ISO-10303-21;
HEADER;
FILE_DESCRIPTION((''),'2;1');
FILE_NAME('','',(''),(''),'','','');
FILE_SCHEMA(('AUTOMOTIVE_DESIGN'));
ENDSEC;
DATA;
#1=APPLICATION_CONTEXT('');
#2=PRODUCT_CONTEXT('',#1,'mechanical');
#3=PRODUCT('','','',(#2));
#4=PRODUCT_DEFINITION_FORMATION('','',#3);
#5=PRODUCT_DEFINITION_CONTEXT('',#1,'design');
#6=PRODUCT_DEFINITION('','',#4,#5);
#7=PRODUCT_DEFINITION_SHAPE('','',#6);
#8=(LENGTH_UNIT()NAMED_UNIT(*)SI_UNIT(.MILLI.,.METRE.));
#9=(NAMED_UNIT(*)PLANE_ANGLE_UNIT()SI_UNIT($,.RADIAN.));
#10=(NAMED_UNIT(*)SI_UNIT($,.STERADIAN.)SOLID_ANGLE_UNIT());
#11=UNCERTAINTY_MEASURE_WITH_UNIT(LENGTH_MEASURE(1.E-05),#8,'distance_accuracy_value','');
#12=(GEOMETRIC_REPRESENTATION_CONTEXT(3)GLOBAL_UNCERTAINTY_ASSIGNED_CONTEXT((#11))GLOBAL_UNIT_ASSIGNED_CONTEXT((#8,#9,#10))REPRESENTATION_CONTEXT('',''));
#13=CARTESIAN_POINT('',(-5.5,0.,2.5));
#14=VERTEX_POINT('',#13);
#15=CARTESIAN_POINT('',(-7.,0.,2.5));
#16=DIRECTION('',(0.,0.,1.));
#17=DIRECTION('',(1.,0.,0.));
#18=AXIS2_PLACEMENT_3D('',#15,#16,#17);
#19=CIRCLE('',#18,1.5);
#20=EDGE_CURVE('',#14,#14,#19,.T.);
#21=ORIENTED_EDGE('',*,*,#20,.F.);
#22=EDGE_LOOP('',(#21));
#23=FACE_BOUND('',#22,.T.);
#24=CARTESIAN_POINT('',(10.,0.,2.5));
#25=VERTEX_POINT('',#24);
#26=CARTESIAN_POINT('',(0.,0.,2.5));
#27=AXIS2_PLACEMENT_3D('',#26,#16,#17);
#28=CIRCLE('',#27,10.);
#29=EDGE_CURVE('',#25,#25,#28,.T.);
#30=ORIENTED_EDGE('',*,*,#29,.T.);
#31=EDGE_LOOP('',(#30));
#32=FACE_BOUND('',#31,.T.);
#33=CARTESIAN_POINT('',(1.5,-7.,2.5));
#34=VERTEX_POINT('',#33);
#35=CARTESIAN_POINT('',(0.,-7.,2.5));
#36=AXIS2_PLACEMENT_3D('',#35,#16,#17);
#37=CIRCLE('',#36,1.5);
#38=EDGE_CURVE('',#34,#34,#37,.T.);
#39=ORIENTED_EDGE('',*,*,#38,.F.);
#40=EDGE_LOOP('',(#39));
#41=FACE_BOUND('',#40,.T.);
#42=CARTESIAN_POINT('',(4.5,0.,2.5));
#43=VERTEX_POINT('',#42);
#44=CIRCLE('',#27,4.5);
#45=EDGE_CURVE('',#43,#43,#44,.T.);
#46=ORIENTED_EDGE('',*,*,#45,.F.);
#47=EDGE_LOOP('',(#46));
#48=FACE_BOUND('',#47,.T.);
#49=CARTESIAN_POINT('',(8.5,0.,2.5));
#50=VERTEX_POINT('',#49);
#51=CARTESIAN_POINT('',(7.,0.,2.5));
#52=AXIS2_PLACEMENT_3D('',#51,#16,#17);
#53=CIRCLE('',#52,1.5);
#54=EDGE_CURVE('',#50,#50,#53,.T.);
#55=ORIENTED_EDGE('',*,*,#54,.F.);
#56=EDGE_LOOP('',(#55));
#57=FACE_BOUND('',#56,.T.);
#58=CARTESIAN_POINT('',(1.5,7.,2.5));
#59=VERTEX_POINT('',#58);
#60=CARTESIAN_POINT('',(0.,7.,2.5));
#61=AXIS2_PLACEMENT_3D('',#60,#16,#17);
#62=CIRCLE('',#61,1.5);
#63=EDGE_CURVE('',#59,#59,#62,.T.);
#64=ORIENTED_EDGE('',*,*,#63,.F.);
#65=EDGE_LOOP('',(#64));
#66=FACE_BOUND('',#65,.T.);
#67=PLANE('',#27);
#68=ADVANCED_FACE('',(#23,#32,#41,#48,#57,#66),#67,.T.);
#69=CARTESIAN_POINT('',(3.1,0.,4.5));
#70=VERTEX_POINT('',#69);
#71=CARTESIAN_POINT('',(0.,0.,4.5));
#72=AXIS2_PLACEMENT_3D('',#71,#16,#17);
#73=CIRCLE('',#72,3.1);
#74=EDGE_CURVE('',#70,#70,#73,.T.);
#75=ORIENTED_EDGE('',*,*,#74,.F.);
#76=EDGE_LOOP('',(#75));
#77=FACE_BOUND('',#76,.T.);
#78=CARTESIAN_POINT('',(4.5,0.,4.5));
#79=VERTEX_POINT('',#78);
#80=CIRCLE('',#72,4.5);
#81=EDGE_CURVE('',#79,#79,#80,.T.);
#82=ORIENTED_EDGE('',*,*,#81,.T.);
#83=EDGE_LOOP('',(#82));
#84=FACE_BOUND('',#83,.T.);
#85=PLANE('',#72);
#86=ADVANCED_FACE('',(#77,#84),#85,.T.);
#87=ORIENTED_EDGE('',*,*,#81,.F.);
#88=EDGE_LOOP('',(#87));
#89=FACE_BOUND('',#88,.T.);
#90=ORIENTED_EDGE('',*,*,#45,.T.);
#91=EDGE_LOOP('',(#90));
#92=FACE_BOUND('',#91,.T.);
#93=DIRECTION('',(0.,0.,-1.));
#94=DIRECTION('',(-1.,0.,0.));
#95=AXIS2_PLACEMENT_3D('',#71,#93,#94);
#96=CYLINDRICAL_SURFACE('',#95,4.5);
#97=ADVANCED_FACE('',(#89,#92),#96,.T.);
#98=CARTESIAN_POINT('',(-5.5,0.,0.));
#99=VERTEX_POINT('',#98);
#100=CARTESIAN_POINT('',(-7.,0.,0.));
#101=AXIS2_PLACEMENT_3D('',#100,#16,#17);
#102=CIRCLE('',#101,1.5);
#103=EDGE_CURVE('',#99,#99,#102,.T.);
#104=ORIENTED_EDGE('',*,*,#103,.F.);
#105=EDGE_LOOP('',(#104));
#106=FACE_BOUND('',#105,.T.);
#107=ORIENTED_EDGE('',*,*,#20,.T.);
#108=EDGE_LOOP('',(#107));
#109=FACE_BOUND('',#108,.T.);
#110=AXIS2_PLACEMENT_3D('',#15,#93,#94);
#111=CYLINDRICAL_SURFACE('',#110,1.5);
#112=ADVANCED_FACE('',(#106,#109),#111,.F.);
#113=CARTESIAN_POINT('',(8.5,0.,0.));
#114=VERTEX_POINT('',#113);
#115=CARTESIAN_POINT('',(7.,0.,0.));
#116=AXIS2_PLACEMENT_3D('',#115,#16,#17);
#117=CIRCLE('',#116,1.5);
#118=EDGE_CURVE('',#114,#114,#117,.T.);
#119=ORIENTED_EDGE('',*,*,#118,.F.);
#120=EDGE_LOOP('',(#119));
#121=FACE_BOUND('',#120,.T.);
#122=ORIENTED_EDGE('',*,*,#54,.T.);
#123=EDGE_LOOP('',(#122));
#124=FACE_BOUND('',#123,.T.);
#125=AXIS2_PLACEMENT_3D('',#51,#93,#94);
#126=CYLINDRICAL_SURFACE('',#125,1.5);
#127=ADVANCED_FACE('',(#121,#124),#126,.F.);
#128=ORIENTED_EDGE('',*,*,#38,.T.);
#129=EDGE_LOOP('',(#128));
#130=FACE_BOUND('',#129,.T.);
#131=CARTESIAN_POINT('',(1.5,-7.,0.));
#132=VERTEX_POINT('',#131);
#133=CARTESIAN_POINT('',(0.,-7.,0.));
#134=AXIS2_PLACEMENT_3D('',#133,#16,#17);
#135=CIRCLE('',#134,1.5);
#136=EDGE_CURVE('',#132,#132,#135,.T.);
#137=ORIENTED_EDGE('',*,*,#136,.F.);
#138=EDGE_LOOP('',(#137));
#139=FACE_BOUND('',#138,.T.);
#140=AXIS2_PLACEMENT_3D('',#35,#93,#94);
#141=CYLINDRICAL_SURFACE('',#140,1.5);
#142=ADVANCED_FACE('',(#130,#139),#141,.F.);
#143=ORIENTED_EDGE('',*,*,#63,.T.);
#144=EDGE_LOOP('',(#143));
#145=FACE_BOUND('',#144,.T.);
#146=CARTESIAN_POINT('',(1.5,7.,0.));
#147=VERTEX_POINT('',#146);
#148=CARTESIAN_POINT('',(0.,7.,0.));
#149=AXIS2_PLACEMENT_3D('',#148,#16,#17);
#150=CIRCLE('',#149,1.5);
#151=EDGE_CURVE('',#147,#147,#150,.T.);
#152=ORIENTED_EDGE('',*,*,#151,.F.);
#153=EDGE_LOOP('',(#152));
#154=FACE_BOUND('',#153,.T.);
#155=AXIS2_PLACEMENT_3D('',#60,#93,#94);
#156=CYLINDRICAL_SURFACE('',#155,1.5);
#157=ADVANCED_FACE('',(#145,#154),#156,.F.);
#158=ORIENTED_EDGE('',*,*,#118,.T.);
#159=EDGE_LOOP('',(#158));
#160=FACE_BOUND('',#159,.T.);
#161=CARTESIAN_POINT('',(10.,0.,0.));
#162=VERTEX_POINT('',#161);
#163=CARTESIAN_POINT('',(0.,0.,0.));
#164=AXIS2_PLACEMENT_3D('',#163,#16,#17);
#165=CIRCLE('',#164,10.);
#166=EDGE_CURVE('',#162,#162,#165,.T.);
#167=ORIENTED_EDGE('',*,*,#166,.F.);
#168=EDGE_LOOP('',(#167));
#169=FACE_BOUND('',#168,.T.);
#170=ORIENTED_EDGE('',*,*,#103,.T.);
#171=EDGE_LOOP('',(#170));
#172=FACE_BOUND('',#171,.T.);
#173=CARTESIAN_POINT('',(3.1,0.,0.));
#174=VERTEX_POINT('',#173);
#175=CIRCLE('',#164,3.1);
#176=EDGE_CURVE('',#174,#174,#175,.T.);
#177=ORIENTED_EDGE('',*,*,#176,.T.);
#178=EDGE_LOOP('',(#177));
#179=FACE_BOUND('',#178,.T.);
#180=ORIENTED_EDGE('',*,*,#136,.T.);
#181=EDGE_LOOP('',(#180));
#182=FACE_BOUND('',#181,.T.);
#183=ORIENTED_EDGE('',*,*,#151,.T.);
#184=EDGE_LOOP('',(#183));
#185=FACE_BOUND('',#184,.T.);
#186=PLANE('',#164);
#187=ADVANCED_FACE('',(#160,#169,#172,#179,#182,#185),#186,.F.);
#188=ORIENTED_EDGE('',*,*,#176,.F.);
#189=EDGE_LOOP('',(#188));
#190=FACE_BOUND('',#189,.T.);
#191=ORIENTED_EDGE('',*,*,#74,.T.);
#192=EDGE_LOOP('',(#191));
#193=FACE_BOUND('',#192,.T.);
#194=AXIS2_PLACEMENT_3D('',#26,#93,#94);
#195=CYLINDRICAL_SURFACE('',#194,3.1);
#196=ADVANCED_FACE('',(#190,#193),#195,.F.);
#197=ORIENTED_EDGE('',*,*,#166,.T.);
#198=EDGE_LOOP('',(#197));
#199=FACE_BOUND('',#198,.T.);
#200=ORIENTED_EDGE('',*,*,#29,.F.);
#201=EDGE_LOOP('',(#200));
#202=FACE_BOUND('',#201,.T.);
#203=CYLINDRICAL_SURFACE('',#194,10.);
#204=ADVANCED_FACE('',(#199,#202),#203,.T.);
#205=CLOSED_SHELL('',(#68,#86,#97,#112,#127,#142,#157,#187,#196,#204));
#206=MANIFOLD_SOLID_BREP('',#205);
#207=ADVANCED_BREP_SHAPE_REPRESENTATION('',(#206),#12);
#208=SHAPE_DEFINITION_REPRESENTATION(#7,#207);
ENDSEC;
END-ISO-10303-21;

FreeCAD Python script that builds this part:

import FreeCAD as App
import Part
import Sketcher
Q = App.Units.Quantity

doc = App.newDocument("Part")
body = doc.addObject("PartDesign::Body", "Body")

# Sketch on XY plane
sketch1 = doc.addObject("Sketcher::SketchObject", "Sketch")
body.addObject(sketch1)
sketch1.AttachmentSupport = (doc.XY_Plane, [""])
sketch1.MapMode = "FlatFace"
sketch1.addGeometry(Part.Circle(App.Vector(0, 0, 0), App.Vector(0, 0, 1), 10), False)
sketch1.addGeometry(Part.Circle(App.Vector(0, -7, 0), App.Vector(0, 0, 1), 1.5), False)
sketch1.addGeometry(Part.Circle(App.Vector(-7, 0, 0), App.Vector(0, 0, 1), 1.5), False)
sketch1.addGeometry(Part.Circle(App.Vector(0, 0, 0), App.Vector(0, 0, 1), 3.1), False)
sketch1.addGeometry(Part.Circle(App.Vector(7, 0, 0), App.Vector(0, 0, 1), 1.5), False)
sketch1.addGeometry(Part.Circle(App.Vector(0, 7, 0), App.Vector(0, 0, 1), 1.5), False)
sketch1.addConstraint(Sketcher.Constraint("Coincident", 0, 3, -1, 1))
sketch1.addConstraint(Sketcher.Constraint("Coincident", 3, 3, -1, 1))
sketch1.addConstraint(Sketcher.Constraint("Equal", 1, 2))
sketch1.addConstraint(Sketcher.Constraint("Equal", 2, 4))
sketch1.addConstraint(Sketcher.Constraint("Equal", 4, 5))
sketch1.addConstraint(Sketcher.Constraint("Symmetric", 2, 3, 4, 3, -1, 1))
sketch1.addConstraint(Sketcher.Constraint("Symmetric", 1, 3, 5, 3, -1, 1))
sketch1.addConstraint(Sketcher.Constraint("PointOnObject", 1, 3, -2))
sketch1.addConstraint(Sketcher.Constraint("PointOnObject", 2, 3, -1))
sketch1.addConstraint(Sketcher.Constraint("Diameter", 0, Q("20 mm")))
sketch1.addConstraint(Sketcher.Constraint("Diameter", 1, Q("3 mm")))
sketch1.addConstraint(Sketcher.Constraint("Diameter", 3, Q("6.2 mm")))
sketch1.addConstraint(Sketcher.Constraint("DistanceY", 1, 3, -1, 1, Q("7 mm")))
sketch1.addConstraint(Sketcher.Constraint("DistanceX", 2, 3, -1, 1, Q("7 mm")))
pad1 = doc.addObject("PartDesign::Pad", "Pad")
body.addObject(pad1)
pad1.Profile = sketch1
pad1.Length = 2.5

# Sketch on XY plane
sketch2 = doc.addObject("Sketcher::SketchObject", "Sketch001")
body.addObject(sketch2)
sketch2.AttachmentSupport = (doc.XY_Plane, [""])
sketch2.MapMode = "FlatFace"
sketch2.AttachmentOffset = App.Placement(App.Vector(0, 0, 2.5), App.Rotation())
sketch2.addGeometry(Part.Circle(App.Vector(0, 0, 0), App.Vector(0, 0, 1), 4.5), False)
sketch2.addGeometry(Part.Circle(App.Vector(0, 0, 0), App.Vector(0, 0, 1), 3.1), False)
sketch2.addConstraint(Sketcher.Constraint("Coincident", 0, 3, -1, 1))
sketch2.addConstraint(Sketcher.Constraint("Coincident", 1, 3, -1, 1))
sketch2.addConstraint(Sketcher.Constraint("Diameter", 0, Q("9 mm")))
sketch2.addConstraint(Sketcher.Constraint("Diameter", 1, Q("6.2 mm")))
pad2 = doc.addObject("PartDesign::Pad", "Pad001")
body.addObject(pad2)
pad2.Profile = sketch2
pad2.Length = 2

doc.recompute()
